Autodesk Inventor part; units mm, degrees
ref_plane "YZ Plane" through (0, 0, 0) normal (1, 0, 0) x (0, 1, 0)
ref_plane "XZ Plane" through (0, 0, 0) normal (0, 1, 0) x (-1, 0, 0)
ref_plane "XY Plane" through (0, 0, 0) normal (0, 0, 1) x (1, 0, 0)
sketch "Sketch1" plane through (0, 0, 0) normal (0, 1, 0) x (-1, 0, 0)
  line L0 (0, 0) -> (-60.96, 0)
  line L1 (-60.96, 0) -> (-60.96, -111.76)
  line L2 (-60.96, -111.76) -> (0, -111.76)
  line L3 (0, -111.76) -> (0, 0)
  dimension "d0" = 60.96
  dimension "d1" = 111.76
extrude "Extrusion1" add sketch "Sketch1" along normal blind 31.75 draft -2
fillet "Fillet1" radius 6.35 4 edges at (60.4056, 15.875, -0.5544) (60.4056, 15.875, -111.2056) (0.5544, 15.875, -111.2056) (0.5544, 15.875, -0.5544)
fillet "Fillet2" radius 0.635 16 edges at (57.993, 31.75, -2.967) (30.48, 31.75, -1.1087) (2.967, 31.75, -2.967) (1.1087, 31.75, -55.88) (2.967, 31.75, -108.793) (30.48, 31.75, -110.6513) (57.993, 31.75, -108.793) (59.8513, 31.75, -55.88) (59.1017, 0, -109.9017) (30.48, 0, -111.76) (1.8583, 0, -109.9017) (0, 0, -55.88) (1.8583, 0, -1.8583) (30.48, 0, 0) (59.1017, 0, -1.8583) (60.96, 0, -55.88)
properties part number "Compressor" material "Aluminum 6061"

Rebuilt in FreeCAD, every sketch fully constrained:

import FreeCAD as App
import Part
import Sketcher
Q = App.Units.Quantity


def edges_at(feature, points):
    """Names of the edges that pass closest to the given points."""
    edges = feature.Shape.Edges
    near = lambda p: min(range(len(edges)), key=lambda i: edges[i].distToShape(Part.Vertex(*p))[0])
    return sorted({f"Edge{near(p) + 1}" for p in points})


def add_polygon(sketch, points):
    """Adds a closed chain of lines whose ends are joined by coincident constraints."""
    first, n = sketch.GeometryCount, len(points)
    for a, b in zip(points, points[1:] + points[:1]):
        sketch.addGeometry(Part.LineSegment(App.Vector(*a, 0), App.Vector(*b, 0)), False)
    for i in range(n):
        sketch.addConstraint(Sketcher.Constraint("Coincident", first + i, 2, first + (i + 1) % n, 1))

doc = App.newDocument("Part")
body = doc.addObject("PartDesign::Body", "Body")

sketch1 = doc.addObject("Sketcher::SketchObject", "Sketch")
body.addObject(sketch1)
sketch1.AttachmentSupport = (doc.XZ_Plane, [""])
sketch1.MapMode = "FlatFace"
add_polygon(sketch1, [(0, -112), (0, 0), (61, 0), (61, -112)])
sketch1.addConstraint([
    Sketcher.Constraint("Vertical", 0),
    Sketcher.Constraint("Horizontal", 1),
    Sketcher.Constraint("Vertical", 2),
    Sketcher.Constraint("Horizontal", 3),
    Sketcher.Constraint("Coincident", 0, 2, -1, 1),
    Sketcher.Constraint("DistanceX", 1, 1, 1, 2, Q("2.4 in")),
    Sketcher.Constraint("DistanceY", 0, 1, 0, 2, Q("4.4 in")),
])
pad1 = doc.addObject("PartDesign::Pad", "Pad")
body.addObject(pad1)
pad1.Profile = sketch1
pad1.Length = Q("1.25 in")
pad1.Reversed = True
pad1.TaperAngle = -2
doc.recompute()

fillet = doc.addObject("PartDesign::Fillet", "Fillet")
body.addObject(fillet)
fillet.Base = (pad1, edges_at(pad1, [
    (60.406, 15.875, -0.554),
    (60.406, 15.875, -111.206),
    (0.554, 15.875, -111.206),
    (0.554, 15.875, -0.554),
]))
fillet.Radius = Q("0.25 in")
doc.recompute()

fillet2 = doc.addObject("PartDesign::Fillet", "Fillet001")
body.addObject(fillet2)
fillet2.Base = (fillet, edges_at(fillet, [
    (57.993, 31.75, -2.967),
    (30.48, 31.75, -1.109),
    (2.967, 31.75, -2.967),
    (1.109, 31.75, -55.88),
    (2.967, 31.75, -108.793),
    (30.48, 31.75, -110.651),
    (57.993, 31.75, -108.793),
    (59.851, 31.75, -55.88),
    (59.102, 0, -109.902),
    (30.48, 0, -111.76),
    (1.858, 0, -109.902),
    (0, 0, -55.88),
    (1.858, 0, -1.858),
    (30.48, 0, 0),
    (59.102, 0, -1.858),
    (60.96, 0, -55.88),
]))
fillet2.Radius = Q("0.025 in")

doc.recompute()
